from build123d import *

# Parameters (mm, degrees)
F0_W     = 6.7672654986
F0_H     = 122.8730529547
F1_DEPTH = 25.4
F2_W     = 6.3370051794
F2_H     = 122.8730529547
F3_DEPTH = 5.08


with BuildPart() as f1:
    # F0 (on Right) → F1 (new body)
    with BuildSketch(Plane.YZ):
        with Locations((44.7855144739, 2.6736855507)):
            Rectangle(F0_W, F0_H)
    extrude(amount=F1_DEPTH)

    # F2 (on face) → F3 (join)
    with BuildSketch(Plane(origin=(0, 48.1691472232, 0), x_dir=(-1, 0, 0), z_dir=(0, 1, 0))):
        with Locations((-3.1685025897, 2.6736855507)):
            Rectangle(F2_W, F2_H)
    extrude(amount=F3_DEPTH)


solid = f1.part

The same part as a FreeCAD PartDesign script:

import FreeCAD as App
import Part
import Sketcher
from FreeCAD import Vector
Q = App.Units.Quantity

doc = App.newDocument("Part")
params = doc.addObject("Spreadsheet::Sheet", "Params")
for row, (alias, value) in enumerate([
    ("pad1_length", "1 in"),
    ("pad2_length", "0.2 in"),
], start=1):
    params.set(f"A{row}", alias)
    params.set(f"B{row}", "=" + value)
    params.setAlias(f"B{row}", alias)

body = doc.addObject("PartDesign::Body", "Body")

# Sketch on YZ plane
sketch1 = body.newObject("Sketcher::SketchObject", "Sketch")
sketch1.AttachmentSupport = (doc.getObject("YZ_Plane"), [""])
sketch1.MapMode = "FlatFace"
sketch1.addGeometry([
    Part.LineSegment(Vector(41, 64, 0), Vector(41, -59, 0)),
    Part.LineSegment(Vector(41, -59, 0), Vector(48, -59, 0)),
    Part.LineSegment(Vector(48, -59, 0), Vector(48, 64, 0)),
    Part.LineSegment(Vector(48, 64, 0), Vector(41, 64, 0)),
], False)
sketch1.addConstraint([
    Sketcher.Constraint("Coincident", 0, 2, 1, 1),
    Sketcher.Constraint("Coincident", 1, 2, 2, 1),
    Sketcher.Constraint("Coincident", 2, 2, 3, 1),
    Sketcher.Constraint("Coincident", 3, 2, 0, 1),
    Sketcher.Constraint("Vertical", 0),
    Sketcher.Constraint("Horizontal", 1),
    Sketcher.Constraint("Vertical", 2),
    Sketcher.Constraint("Horizontal", 3),
    Sketcher.Constraint("DistanceX", 1, 1, 1, 2, Q("6.767265 mm")),
    Sketcher.Constraint("DistanceY", 0, 2, 0, 1, Q("122.873053 mm")),
    Sketcher.Constraint("DistanceX", -1, 1, 0, 2, Q("41.401882 mm")),
    Sketcher.Constraint("DistanceY", 0, 2, -1, 1, Q("58.762841 mm")),
])
pad1 = body.newObject("PartDesign::Pad", "Pad")
pad1.Profile = sketch1
pad1.setExpression("Length", "Params.pad1_length")

# Sketch on XZ plane
sketch2 = body.newObject("Sketcher::SketchObject", "Sketch001")
sketch2.AttachmentSupport = (doc.getObject("XZ_Plane"), [""])
sketch2.MapMode = "FlatFace"
sketch2.AttachmentOffset = App.Placement(Vector(0, 0, -48.169147), App.Rotation())
sketch2.addGeometry([
    Part.LineSegment(Vector(6, 64, 0), Vector(6, -59, 0)),
    Part.LineSegment(Vector(6, -59, 0), Vector(0, -59, 0)),
    Part.LineSegment(Vector(0, -59, 0), Vector(0, 64, 0)),
    Part.LineSegment(Vector(0, 64, 0), Vector(6, 64, 0)),
], False)
sketch2.addConstraint([
    Sketcher.Constraint("Coincident", 0, 2, 1, 1),
    Sketcher.Constraint("Coincident", 1, 2, 2, 1),
    Sketcher.Constraint("Coincident", 2, 2, 3, 1),
    Sketcher.Constraint("Coincident", 3, 2, 0, 1),
    Sketcher.Constraint("Vertical", 0),
    Sketcher.Constraint("Horizontal", 1),
    Sketcher.Constraint("Vertical", 2),
    Sketcher.Constraint("Horizontal", 3),
    Sketcher.Constraint("PointOnObject", 1, 2, -2),
    Sketcher.Constraint("DistanceX", 1, 2, 1, 1, Q("6.337005 mm")),
    Sketcher.Constraint("DistanceY", 0, 2, 0, 1, Q("122.873053 mm")),
    Sketcher.Constraint("DistanceY", 0, 2, -1, 1, Q("58.762841 mm")),
])
pad2 = body.newObject("PartDesign::Pad", "Pad001")
pad2.Profile = sketch2
pad2.setExpression("Length", "Params.pad2_length")
pad2.Reversed = True

doc.recompute()
